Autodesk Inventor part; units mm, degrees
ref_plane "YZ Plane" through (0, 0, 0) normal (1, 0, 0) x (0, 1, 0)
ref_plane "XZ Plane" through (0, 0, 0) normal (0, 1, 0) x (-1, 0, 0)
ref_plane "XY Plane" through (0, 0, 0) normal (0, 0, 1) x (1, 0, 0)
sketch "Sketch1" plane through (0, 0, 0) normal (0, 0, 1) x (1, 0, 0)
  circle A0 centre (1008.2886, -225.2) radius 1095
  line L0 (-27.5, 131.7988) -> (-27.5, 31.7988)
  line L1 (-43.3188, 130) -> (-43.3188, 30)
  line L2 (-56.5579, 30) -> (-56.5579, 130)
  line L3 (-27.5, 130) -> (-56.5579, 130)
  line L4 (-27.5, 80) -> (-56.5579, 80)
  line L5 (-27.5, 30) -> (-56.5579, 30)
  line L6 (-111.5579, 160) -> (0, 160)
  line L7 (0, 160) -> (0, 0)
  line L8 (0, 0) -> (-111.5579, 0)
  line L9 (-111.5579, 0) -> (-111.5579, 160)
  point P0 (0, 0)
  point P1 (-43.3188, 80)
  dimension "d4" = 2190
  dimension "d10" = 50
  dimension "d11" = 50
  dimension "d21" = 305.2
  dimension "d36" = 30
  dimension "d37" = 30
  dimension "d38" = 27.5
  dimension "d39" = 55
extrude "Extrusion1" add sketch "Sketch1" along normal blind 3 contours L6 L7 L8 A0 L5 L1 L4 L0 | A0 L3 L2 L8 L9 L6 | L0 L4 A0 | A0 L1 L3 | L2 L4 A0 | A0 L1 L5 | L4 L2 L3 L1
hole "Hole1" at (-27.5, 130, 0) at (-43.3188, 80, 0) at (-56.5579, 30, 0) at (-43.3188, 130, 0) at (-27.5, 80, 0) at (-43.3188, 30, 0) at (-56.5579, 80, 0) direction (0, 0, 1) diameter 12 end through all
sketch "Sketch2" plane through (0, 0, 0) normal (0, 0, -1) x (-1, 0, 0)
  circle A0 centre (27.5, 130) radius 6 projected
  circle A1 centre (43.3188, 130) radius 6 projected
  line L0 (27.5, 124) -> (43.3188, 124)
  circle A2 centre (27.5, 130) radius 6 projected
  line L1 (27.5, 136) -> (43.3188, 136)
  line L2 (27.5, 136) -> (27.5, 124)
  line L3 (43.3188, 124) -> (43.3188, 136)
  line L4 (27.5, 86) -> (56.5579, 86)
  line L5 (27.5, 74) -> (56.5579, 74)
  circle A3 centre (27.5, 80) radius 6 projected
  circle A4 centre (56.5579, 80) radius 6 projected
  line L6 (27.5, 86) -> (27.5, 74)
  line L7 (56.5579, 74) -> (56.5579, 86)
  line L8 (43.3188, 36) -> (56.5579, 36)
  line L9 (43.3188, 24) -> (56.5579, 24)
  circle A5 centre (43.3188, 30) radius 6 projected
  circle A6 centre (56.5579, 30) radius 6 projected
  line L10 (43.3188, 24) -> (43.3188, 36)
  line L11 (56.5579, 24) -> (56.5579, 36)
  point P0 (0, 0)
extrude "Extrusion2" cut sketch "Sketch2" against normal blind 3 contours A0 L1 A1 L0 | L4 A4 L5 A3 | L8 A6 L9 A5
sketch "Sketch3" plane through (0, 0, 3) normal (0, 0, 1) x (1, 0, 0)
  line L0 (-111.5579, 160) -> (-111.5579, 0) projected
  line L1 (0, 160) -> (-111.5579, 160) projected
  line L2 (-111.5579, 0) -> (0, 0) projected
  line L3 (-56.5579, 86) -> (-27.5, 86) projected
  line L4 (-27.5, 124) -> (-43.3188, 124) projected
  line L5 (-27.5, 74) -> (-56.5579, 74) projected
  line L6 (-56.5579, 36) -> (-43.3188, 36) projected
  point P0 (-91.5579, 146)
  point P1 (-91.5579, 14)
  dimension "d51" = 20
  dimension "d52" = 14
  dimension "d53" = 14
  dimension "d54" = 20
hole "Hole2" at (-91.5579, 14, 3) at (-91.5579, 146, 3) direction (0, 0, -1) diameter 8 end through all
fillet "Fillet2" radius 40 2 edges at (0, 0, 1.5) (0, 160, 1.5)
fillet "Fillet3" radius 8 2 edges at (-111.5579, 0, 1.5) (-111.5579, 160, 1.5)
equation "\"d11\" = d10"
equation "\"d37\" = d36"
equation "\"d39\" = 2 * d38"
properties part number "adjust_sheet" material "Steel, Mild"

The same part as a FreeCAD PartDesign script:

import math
import FreeCAD as App
import Part
import Sketcher
Q = App.Units.Quantity


def edges_at(feature, points):
    """Names of the edges that pass closest to the given points."""
    edges = feature.Shape.Edges
    near = lambda p: min(range(len(edges)), key=lambda i: edges[i].distToShape(Part.Vertex(*p))[0])
    return sorted({f"Edge{near(p) + 1}" for p in points})


def add_polygon(sketch, points):
    """Adds a closed chain of lines whose ends are joined by coincident constraints."""
    first, n = sketch.GeometryCount, len(points)
    for a, b in zip(points, points[1:] + points[:1]):
        sketch.addGeometry(Part.LineSegment(App.Vector(*a, 0), App.Vector(*b, 0)), False)
    for i in range(n):
        sketch.addConstraint(Sketcher.Constraint("Coincident", first + i, 2, first + (i + 1) % n, 1))

doc = App.newDocument("Part")
params = doc.addObject("Spreadsheet::Sheet", "Params")
for row, (alias, value) in enumerate([
    ("sketch1_height", "160 mm"),
    ("pad1_length", "3 mm"),
    ("sketch2_diameter", "12 mm"),
    ("hole_diameter", "12 mm"),
    ("sketch3_radius", "6 mm"),
    ("pocket1_length", "3 mm"),
    ("sketch4_diameter", "8 mm"),
    ("hole2_diameter", "8 mm"),
    ("fillet_radius", "40 mm"),
    ("fillet2_radius", "8 mm"),
], start=1):
    params.set(f"A{row}", alias)
    params.set(f"B{row}", "=" + value)
    params.setAlias(f"B{row}", alias)

body = doc.addObject("PartDesign::Body", "Body")

# Sketch on XY plane
sketch1 = body.newObject("Sketcher::SketchObject", "Sketch")
sketch1.AttachmentSupport = (doc.getObject("XY_Plane"), [""])
sketch1.MapMode = "FlatFace"
add_polygon(sketch1, [(0, 160), (-112, 160), (-112, 0), (0, 0)])  # lines 0-3
sketch1.addConstraint([
    Sketcher.Constraint("Horizontal", 0),
    Sketcher.Constraint("Vertical", 1),
    Sketcher.Constraint("Horizontal", 2),
    Sketcher.Constraint("Vertical", 3),
    Sketcher.Constraint("Coincident", 2, 2, -1, 1),
    Sketcher.Constraint("DistanceY", 1, 2, 1, 1, Q("160 mm")),
    Sketcher.Constraint("DistanceX", 0, 2, 0, 1, Q("111.558 mm")),
])
sketch1.setExpression("Constraints[9]", "Params.sketch1_height")
pad1 = body.newObject("PartDesign::Pad", "Pad")
pad1.Profile = sketch1
pad1.setExpression("Length", "Params.pad1_length")

# Sketch on XY plane
sketch2 = body.newObject("Sketcher::SketchObject", "Sketch001")
sketch2.AttachmentSupport = (doc.getObject("XY_Plane"), [""])
sketch2.MapMode = "FlatFace"
sketch2.addGeometry([
    Part.Circle(App.Vector(-28, 130, 0), App.Vector(0, 0, 1), 6),  # 0
    Part.Circle(App.Vector(-43, 80, 0), App.Vector(0, 0, 1), 6),  # 1
    Part.Circle(App.Vector(-57, 30, 0), App.Vector(0, 0, 1), 6),  # 2
    Part.Circle(App.Vector(-43, 130, 0), App.Vector(0, 0, 1), 6),  # 3
    Part.Circle(App.Vector(-28, 80, 0), App.Vector(0, 0, 1), 6),  # 4
    Part.Circle(App.Vector(-43, 30, 0), App.Vector(0, 0, 1), 6),  # 5
    Part.Circle(App.Vector(-57, 80, 0), App.Vector(0, 0, 1), 6),  # 6
], False)
sketch2.addConstraint([
    Sketcher.Constraint("Equal", 0, 1),
    Sketcher.Constraint("Equal", 1, 2),
    Sketcher.Constraint("Equal", 2, 3),
    Sketcher.Constraint("Equal", 3, 4),
    Sketcher.Constraint("Equal", 4, 5),
    Sketcher.Constraint("Equal", 5, 6),
    Sketcher.Constraint("Horizontal", 0, 3, 3, 3),
    Sketcher.Constraint("Horizontal", 1, 3, 4, 3),
    Sketcher.Constraint("Horizontal", 2, 3, 5, 3),
    Sketcher.Constraint("Horizontal", 4, 3, 6, 3),
    Sketcher.Constraint("Vertical", 1, 3, 3, 3),
    Sketcher.Constraint("Vertical", 0, 3, 4, 3),
    Sketcher.Constraint("Vertical", 3, 3, 5, 3),
    Sketcher.Constraint("Vertical", 2, 3, 6, 3),
    Sketcher.Constraint("Diameter", 0, Q("12 mm")),
    Sketcher.Constraint("DistanceY", -1, 1, 0, 3, Q("130 mm")),
    Sketcher.Constraint("DistanceY", -1, 1, 1, 3, Q("80 mm")),
    Sketcher.Constraint("DistanceY", -1, 1, 2, 3, Q("30 mm")),
    Sketcher.Constraint("DistanceX", 0, 3, -1, 1, Q("27.5 mm")),
    Sketcher.Constraint("DistanceX", 2, 3, -1, 1, Q("56.558 mm")),
    Sketcher.Constraint("DistanceX", 2, 3, 1, 3, Q("13.239 mm")),
])
sketch2.setExpression("Constraints[14]", "Params.sketch2_diameter")
doc.recompute()
hole = body.newObject("PartDesign::Hole", "Hole")
hole.Profile = sketch2
hole.ThreadType = "None"
hole.setExpression("Diameter", "Params.hole_diameter")
hole.DepthType = "ThroughAll"
hole.Reversed = True

# Sketch on XY plane
sketch3 = body.newObject("Sketcher::SketchObject", "Sketch002")
sketch3.AttachmentSupport = (doc.getObject("XY_Plane"), [""])
sketch3.MapMode = "FlatFace"
sketch3.addGeometry([
    Part.ArcOfCircle(Part.Circle(App.Vector(-28, 130, 0), App.Vector(0, 0, 1), 6), math.radians(90), math.radians(270)),  # 0
    Part.LineSegment(App.Vector(-28, 124, 0), App.Vector(-43, 124, 0)),  # 1
    Part.ArcOfCircle(Part.Circle(App.Vector(-43, 130, 0), App.Vector(0, 0, 1), 6), math.radians(-90), math.radians(90)),  # 2
    Part.LineSegment(App.Vector(-43, 136, 0), App.Vector(-28, 136, 0)),  # 3
    Part.LineSegment(App.Vector(-57, 86, 0), App.Vector(-28, 86, 0)),  # 4
    Part.ArcOfCircle(Part.Circle(App.Vector(-28, 80, 0), App.Vector(0, 0, 1), 6), math.radians(90), math.radians(270)),  # 5
    Part.LineSegment(App.Vector(-28, 74, 0), App.Vector(-57, 74, 0)),  # 6
    Part.ArcOfCircle(Part.Circle(App.Vector(-57, 80, 0), App.Vector(0, 0, 1), 6), math.radians(-90), math.radians(90)),  # 7
    Part.LineSegment(App.Vector(-57, 36, 0), App.Vector(-43, 36, 0)),  # 8
    Part.ArcOfCircle(Part.Circle(App.Vector(-43, 30, 0), App.Vector(0, 0, 1), 6), math.radians(90), math.radians(270)),  # 9
    Part.LineSegment(App.Vector(-43, 24, 0), App.Vector(-57, 24, 0)),  # 10
    Part.ArcOfCircle(Part.Circle(App.Vector(-57, 30, 0), App.Vector(0, 0, 1), 6), math.radians(-90), math.radians(90)),  # 11
], False)
sketch3.addConstraint([
    Sketcher.Constraint("Tangent", 0, 2, 1, 1),
    Sketcher.Constraint("Tangent", 1, 2, 2, 1),
    Sketcher.Constraint("Tangent", 2, 2, 3, 1),
    Sketcher.Constraint("Tangent", 3, 2, 0, 1),
    Sketcher.Constraint("Tangent", 4, 2, 5, 1),
    Sketcher.Constraint("Tangent", 5, 2, 6, 1),
    Sketcher.Constraint("Tangent", 6, 2, 7, 1),
    Sketcher.Constraint("Tangent", 7, 2, 4, 1),
    Sketcher.Constraint("Tangent", 8, 2, 9, 1),
    Sketcher.Constraint("Tangent", 9, 2, 10, 1),
    Sketcher.Constraint("Tangent", 10, 2, 11, 1),
    Sketcher.Constraint("Tangent", 11, 2, 8, 1),
    Sketcher.Constraint("Horizontal", 1),
    Sketcher.Constraint("Horizontal", 3),
    Sketcher.Constraint("Horizontal", 4),
    Sketcher.Constraint("Horizontal", 6),
    Sketcher.Constraint("Horizontal", 8),
    Sketcher.Constraint("Horizontal", 10),
    Sketcher.Constraint("Equal", 2, 5),
    Sketcher.Constraint("Equal", 7, 9),
    Sketcher.Constraint("Vertical", 0, 3, 5, 3),
    Sketcher.Constraint("Vertical", 2, 3, 9, 3),
    Sketcher.Constraint("Vertical", 7, 3, 11, 3),
    Sketcher.Constraint("Radius", 0, Q("6 mm")),
    Sketcher.Constraint("DistanceY", -1, 1, 0, 3, Q("130 mm")),
    Sketcher.Constraint("DistanceY", -1, 1, 5, 3, Q("80 mm")),
    Sketcher.Constraint("DistanceY", -1, 1, 9, 3, Q("30 mm")),
    Sketcher.Constraint("DistanceX", 0, 3, -1, 1, Q("27.5 mm")),
    Sketcher.Constraint("DistanceX", 4, 1, 4, 2, Q("29.058 mm")),
    Sketcher.Constraint("DistanceX", 8, 1, 8, 2, Q("13.239 mm")),
])
sketch3.setExpression("Constraints[23]", "Params.sketch3_radius")
pocket1 = body.newObject("PartDesign::Pocket", "Pocket")
pocket1.Profile = sketch3
pocket1.setExpression("Length", "Params.pocket1_length")
pocket1.Reversed = True

# Sketch on XY plane
sketch4 = body.newObject("Sketcher::SketchObject", "Sketch003")
sketch4.AttachmentSupport = (doc.getObject("XY_Plane"), [""])
sketch4.MapMode = "FlatFace"
sketch4.AttachmentOffset = App.Placement(App.Vector(0, 0, 3), App.Rotation())
sketch4.addGeometry([
    Part.Circle(App.Vector(-91.6, 14, 0), App.Vector(0, 0, 1), 4),
    Part.Circle(App.Vector(-91.6, 146, 0), App.Vector(0, 0, 1), 4),
], False)
sketch4.addConstraint([
    Sketcher.Constraint("Equal", 0, 1),
    Sketcher.Constraint("Vertical", 0, 3, 1, 3),
    Sketcher.Constraint("Diameter", 0, Q("8 mm")),
    Sketcher.Constraint("DistanceY", -1, 1, 0, 3, Q("14 mm")),
    Sketcher.Constraint("DistanceY", -1, 1, 1, 3, Q("146 mm")),
    Sketcher.Constraint("DistanceX", 0, 3, -1, 1, Q("91.558 mm")),
])
sketch4.setExpression("Constraints[2]", "Params.sketch4_diameter")
doc.recompute()
hole2 = body.newObject("PartDesign::Hole", "Hole001")
hole2.Profile = sketch4
hole2.ThreadType = "None"
hole2.setExpression("Diameter", "Params.hole2_diameter")
hole2.DepthType = "ThroughAll"
doc.recompute()

fillet = body.newObject("PartDesign::Fillet", "Fillet")
fillet.Base = (hole2, edges_at(hole2, [(0, 0, 1.5), (0, 160, 1.5)]))
fillet.setExpression("Radius", "Params.fillet_radius")
doc.recompute()

fillet2 = body.newObject("PartDesign::Fillet", "Fillet001")
fillet2.Base = (fillet, edges_at(fillet, [(-111.558, 0, 1.5), (-111.558, 160, 1.5)]))
fillet2.setExpression("Radius", "Params.fillet2_radius")

doc.recompute()
